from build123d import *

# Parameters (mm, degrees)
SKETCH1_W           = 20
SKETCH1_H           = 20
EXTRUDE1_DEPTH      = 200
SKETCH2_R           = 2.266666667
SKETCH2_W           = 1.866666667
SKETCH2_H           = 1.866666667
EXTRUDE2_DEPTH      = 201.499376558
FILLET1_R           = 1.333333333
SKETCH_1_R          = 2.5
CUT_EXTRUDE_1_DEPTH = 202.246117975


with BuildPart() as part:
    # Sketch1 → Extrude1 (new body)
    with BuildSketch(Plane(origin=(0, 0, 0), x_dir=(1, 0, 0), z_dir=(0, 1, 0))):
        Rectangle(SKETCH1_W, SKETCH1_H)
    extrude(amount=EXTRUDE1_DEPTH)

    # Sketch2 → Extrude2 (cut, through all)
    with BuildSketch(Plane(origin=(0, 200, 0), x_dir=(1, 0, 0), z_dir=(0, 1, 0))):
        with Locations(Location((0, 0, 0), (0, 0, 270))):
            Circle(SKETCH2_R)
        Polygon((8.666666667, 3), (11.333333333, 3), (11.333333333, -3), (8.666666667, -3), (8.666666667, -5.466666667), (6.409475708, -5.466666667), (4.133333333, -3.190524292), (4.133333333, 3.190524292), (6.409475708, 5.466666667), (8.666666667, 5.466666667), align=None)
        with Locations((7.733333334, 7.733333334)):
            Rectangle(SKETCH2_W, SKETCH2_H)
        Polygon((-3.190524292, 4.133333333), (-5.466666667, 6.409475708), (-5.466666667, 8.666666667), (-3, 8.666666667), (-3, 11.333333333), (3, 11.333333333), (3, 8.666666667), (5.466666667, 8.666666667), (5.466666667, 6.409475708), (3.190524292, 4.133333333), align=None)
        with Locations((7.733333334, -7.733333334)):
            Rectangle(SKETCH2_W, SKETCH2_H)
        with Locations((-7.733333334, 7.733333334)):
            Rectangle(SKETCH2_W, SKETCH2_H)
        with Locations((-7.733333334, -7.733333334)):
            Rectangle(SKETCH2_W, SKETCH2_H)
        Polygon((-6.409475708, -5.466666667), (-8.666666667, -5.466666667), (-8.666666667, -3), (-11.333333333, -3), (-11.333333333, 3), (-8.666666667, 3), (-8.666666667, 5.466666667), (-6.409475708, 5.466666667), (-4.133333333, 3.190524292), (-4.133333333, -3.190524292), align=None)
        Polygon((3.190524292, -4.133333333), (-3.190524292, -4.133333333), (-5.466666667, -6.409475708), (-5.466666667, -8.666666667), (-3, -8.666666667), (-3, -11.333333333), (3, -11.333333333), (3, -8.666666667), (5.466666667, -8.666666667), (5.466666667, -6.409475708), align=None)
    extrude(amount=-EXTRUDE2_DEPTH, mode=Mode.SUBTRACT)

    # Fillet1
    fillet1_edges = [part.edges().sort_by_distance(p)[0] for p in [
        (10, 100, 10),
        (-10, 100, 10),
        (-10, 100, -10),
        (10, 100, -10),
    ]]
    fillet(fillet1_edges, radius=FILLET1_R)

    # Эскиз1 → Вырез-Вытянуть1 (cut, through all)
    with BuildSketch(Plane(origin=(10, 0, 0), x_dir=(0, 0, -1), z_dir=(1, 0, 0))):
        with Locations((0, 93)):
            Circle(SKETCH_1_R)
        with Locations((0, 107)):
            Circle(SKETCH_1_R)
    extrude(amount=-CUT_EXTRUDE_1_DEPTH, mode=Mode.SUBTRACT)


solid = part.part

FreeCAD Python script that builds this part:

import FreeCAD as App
import Part
import Sketcher


def edges_at(feature, points):
    """Names of the edges that pass closest to the given points."""
    edges = feature.Shape.Edges
    near = lambda p: min(range(len(edges)), key=lambda i: edges[i].distToShape(Part.Vertex(*p))[0])
    return sorted({f"Edge{near(p) + 1}" for p in points})


def add_polygon(sketch, points):
    """Adds a closed chain of lines whose ends are joined by coincident constraints."""
    first, n = sketch.GeometryCount, len(points)
    for a, b in zip(points, points[1:] + points[:1]):
        sketch.addGeometry(Part.LineSegment(App.Vector(*a, 0), App.Vector(*b, 0)), False)
    for i in range(n):
        sketch.addConstraint(Sketcher.Constraint("Coincident", first + i, 2, first + (i + 1) % n, 1))

doc = App.newDocument("Part")
body = doc.addObject("PartDesign::Body", "Body")

# Sketch on XZ plane
sketch1 = body.newObject("Sketcher::SketchObject", "Sketch")
sketch1.AttachmentSupport = (doc.getObject("XZ_Plane"), [""])
sketch1.MapMode = "FlatFace"
add_polygon(sketch1, [(-10, -10), (-10, 10), (10, 10), (10, -10)])  # lines 0-3
sketch1.addConstraint([
    Sketcher.Constraint("Vertical", 0),
    Sketcher.Constraint("Horizontal", 1),
    Sketcher.Constraint("Vertical", 2),
    Sketcher.Constraint("Horizontal", 3),
    Sketcher.Constraint("Symmetric", 0, 2, 2, 2, -1, 1),
    Sketcher.Constraint("Equal", 3, 0),
    Sketcher.Constraint("DistanceX", 1, 1, 1, 2, 20.0),
])
pad1 = body.newObject("PartDesign::Pad", "Pad")
pad1.Profile = sketch1
pad1.Length = 200
pad1.Reversed = True

# Sketch on XZ plane
sketch2 = body.newObject("Sketcher::SketchObject", "Sketch001")
sketch2.AttachmentSupport = (doc.getObject("XZ_Plane"), [""])
sketch2.MapMode = "FlatFace"
sketch2.AttachmentOffset = App.Placement(App.Vector(0, 0, -200), App.Rotation())
sketch2.addGeometry(Part.Circle(App.Vector(0, 0, 0), App.Vector(0, 0, 1), 2.3), False)  # 0
add_polygon(sketch2, [(11.3, -3), (8.7, -3), (8.7, -5.5), (6.4, -5.5), (4.1, -3.2), (4.1, 3.2), (6.4, 5.5), (8.7, 5.5), (8.7, 3), (11.3, 3)])  # lines 1-10
add_polygon(sketch2, [(6.8, -8.7), (6.8, -6.8), (8.7, -6.8), (8.7, -8.7)])  # lines 11-14
add_polygon(sketch2, [(-5.5, -6.4), (-3.2, -4.1), (3.2, -4.1), (5.5, -6.4), (5.5, -8.7), (3, -8.7), (3, -11.3), (-3, -11.3), (-3, -8.7), (-5.5, -8.7)])  # lines 15-24
add_polygon(sketch2, [(6.8, 6.8), (6.8, 8.7), (8.7, 8.7), (8.7, 6.8)])  # lines 25-28
add_polygon(sketch2, [(-8.7, -8.7), (-8.7, -6.8), (-6.8, -6.8), (-6.8, -8.7)])  # lines 29-32
add_polygon(sketch2, [(-8.7, 6.8), (-8.7, 8.7), (-6.8, 8.7), (-6.8, 6.8)])  # lines 33-36
add_polygon(sketch2, [(-8.7, 5.5), (-6.4, 5.5), (-4.1, 3.2), (-4.1, -3.2), (-6.4, -5.5), (-8.7, -5.5), (-8.7, -3), (-11.3, -3), (-11.3, 3), (-8.7, 3)])  # lines 37-46
add_polygon(sketch2, [(3.2, 4.1), (-3.2, 4.1), (-5.5, 6.4), (-5.5, 8.7), (-3, 8.7), (-3, 11.3), (3, 11.3), (3, 8.7), (5.5, 8.7), (5.5, 6.4)])  # lines 47-56
sketch2.addConstraint([
    Sketcher.Constraint("Horizontal", 1),
    Sketcher.Constraint("Vertical", 2),
    Sketcher.Constraint("Horizontal", 3),
    Sketcher.Constraint("Vertical", 5),
    Sketcher.Constraint("Horizontal", 7),
    Sketcher.Constraint("Vertical", 8),
    Sketcher.Constraint("Horizontal", 9),
    Sketcher.Constraint("Vertical", 10),
    Sketcher.Constraint("Vertical", 11),
    Sketcher.Constraint("Horizontal", 12),
    Sketcher.Constraint("Vertical", 13),
    Sketcher.Constraint("Horizontal", 14),
    Sketcher.Constraint("Horizontal", 16),
    Sketcher.Constraint("Vertical", 18),
    Sketcher.Constraint("Horizontal", 19),
    Sketcher.Constraint("Vertical", 20),
    Sketcher.Constraint("Horizontal", 21),
    Sketcher.Constraint("Vertical", 22),
    Sketcher.Constraint("Horizontal", 23),
    Sketcher.Constraint("Vertical", 24),
    Sketcher.Constraint("Vertical", 25),
    Sketcher.Constraint("Horizontal", 26),
    Sketcher.Constraint("Vertical", 27),
    Sketcher.Constraint("Horizontal", 28),
    Sketcher.Constraint("Vertical", 29),
    Sketcher.Constraint("Horizontal", 30),
    Sketcher.Constraint("Vertical", 31),
    Sketcher.Constraint("Horizontal", 32),
    Sketcher.Constraint("Vertical", 33),
    Sketcher.Constraint("Horizontal", 34),
    Sketcher.Constraint("Vertical", 35),
    Sketcher.Constraint("Horizontal", 36),
    Sketcher.Constraint("Horizontal", 37),
    Sketcher.Constraint("Vertical", 39),
    Sketcher.Constraint("Horizontal", 41),
    Sketcher.Constraint("Vertical", 42),
    Sketcher.Constraint("Horizontal", 43),
    Sketcher.Constraint("Vertical", 44),
    Sketcher.Constraint("Horizontal", 45),
    Sketcher.Constraint("Vertical", 46),
    Sketcher.Constraint("Horizontal", 47),
    Sketcher.Constraint("Vertical", 49),
    Sketcher.Constraint("Horizontal", 50),
    Sketcher.Constraint("Vertical", 51),
    Sketcher.Constraint("Horizontal", 52),
    Sketcher.Constraint("Vertical", 53),
    Sketcher.Constraint("Horizontal", 54),
    Sketcher.Constraint("Vertical", 55),
    Sketcher.Constraint("Coincident", 0, 3, -1, 1),
    Sketcher.Constraint("Symmetric", 27, 2, 29, 2, -1, 1),
    Sketcher.Constraint("Symmetric", 25, 2, 31, 2, -1, 1),
    Sketcher.Constraint("Symmetric", 13, 2, 33, 2, -1, 1),
    Sketcher.Constraint("Symmetric", 11, 2, 35, 2, -1, 1),
    Sketcher.Constraint("Symmetric", 3, 2, 37, 2, -1, 1),
    Sketcher.Constraint("Symmetric", 4, 2, 38, 2, -1, 1),
    Sketcher.Constraint("Symmetric", 6, 2, 40, 2, -1, 1),
    Sketcher.Constraint("Symmetric", 8, 2, 42, 2, -1, 1),
    Sketcher.Constraint("Symmetric", 10, 2, 44, 2, -1, 1),
    Sketcher.Constraint("Symmetric", 16, 2, 47, 2, -1, 1),
    Sketcher.Constraint("Symmetric", 17, 2, 48, 2, -1, 1),
    Sketcher.Constraint("Symmetric", 19, 2, 50, 2, -1, 1),
    Sketcher.Constraint("Symmetric", 21, 2, 52, 2, -1, 1),
    Sketcher.Constraint("Symmetric", 23, 2, 54, 2, -1, 1),
    Sketcher.Constraint("Symmetric", 19, 2, 22, 2, -2),
    Sketcher.Constraint("Symmetric", 17, 2, 24, 2, -2),
    Sketcher.Constraint("Symmetric", 12, 2, 29, 2, -2),
    Sketcher.Constraint("Symmetric", 14, 2, 31, 2, -2),
    Sketcher.Constraint("Symmetric", 6, 2, 37, 2, -2),
    Sketcher.Constraint("Symmetric", 1, 2, 42, 2, -2),
    Sketcher.Constraint("Perpendicular", 4, 6),
    Sketcher.Constraint("Parallel", 6, 15),
    Sketcher.Constraint("Perpendicular", 15, 17),
    Sketcher.Constraint("Perpendicular", 38, 40),
    Sketcher.Constraint("Perpendicular", 48, 56),
    Sketcher.Constraint("Horizontal", 14, 2, 18, 2),
    Sketcher.Constraint("Horizontal", 5, 2, 38, 2),
    Sketcher.Constraint("Horizontal", 48, 2, 55, 2),
    Sketcher.Constraint("Vertical", 8, 2, 12, 2),
    Sketcher.Constraint("Vertical", 42, 2, 45, 2),
    Sketcher.Constraint("Equal", 54, 2),
    Sketcher.Constraint("Equal", 47, 5),
    Sketcher.Constraint("Equal", 52, 10),
    Sketcher.Constraint("Equal", 36, 11),
    Sketcher.Constraint("Equal", 41, 18),
    Sketcher.Constraint("Equal", 45, 20),
    Sketcher.Constraint("DistanceX", 21, 2, 21, 1, 6.0),
    Sketcher.Constraint("DistanceX", -1, 1, 11, 2, 6.8),
    Sketcher.Constraint("DistanceY", 11, 2, -1, 1, 6.8),
    Sketcher.Constraint("DistanceX", 5, 2, 9, 2, 7.2),
    Sketcher.Constraint("DistanceY", 13, 2, 2, 2, 3.2),
    Sketcher.Constraint("DistanceX", 15, 2, 3, 2, 9.6),
    Sketcher.Constraint("Diameter", 0, 4.533333),
    Sketcher.Constraint("DistanceX", 3, 2, 3, 1, 2.257191),
    Sketcher.Constraint("DistanceX", 16, 1, 16, 2, 6.381049),
])
pocket1 = body.newObject("PartDesign::Pocket", "Pocket")
pocket1.Profile = sketch2
pocket1.Type = "ThroughAll"
pocket1.Reversed = True
doc.recompute()

fillet = body.newObject("PartDesign::Fillet", "Fillet")
fillet.Base = (pocket1, edges_at(pocket1, [
    (10, 100, 10),
    (-10, 100, 10),
    (-10, 100, -10),
    (10, 100, -10),
]))
fillet.Radius = 1.333333

# Sketch on YZ plane
sketch3 = body.newObject("Sketcher::SketchObject", "Sketch002")
sketch3.AttachmentSupport = (doc.getObject("YZ_Plane"), [""])
sketch3.MapMode = "FlatFace"
sketch3.AttachmentOffset = App.Placement(App.Vector(0, 0, 10), App.Rotation())
sketch3.addGeometry([
    Part.Circle(App.Vector(93, 0, 0), App.Vector(0, 0, 1), 2.5),
    Part.Circle(App.Vector(107, 0, 0), App.Vector(0, 0, 1), 2.5),
], False)
sketch3.addConstraint([
    Sketcher.Constraint("Equal", 0, 1),
    Sketcher.Constraint("PointOnObject", 0, 3, -1),
    Sketcher.Constraint("PointOnObject", 1, 3, -1),
    Sketcher.Constraint("Diameter", 0, 5.0),
    Sketcher.Constraint("DistanceX", -1, 1, 0, 3, 93.0),
    Sketcher.Constraint("DistanceX", -1, 1, 1, 3, 107.0),
])
pocket2 = body.newObject("PartDesign::Pocket", "Pocket001")
pocket2.Profile = sketch3
pocket2.Type = "ThroughAll"

doc.recompute()
